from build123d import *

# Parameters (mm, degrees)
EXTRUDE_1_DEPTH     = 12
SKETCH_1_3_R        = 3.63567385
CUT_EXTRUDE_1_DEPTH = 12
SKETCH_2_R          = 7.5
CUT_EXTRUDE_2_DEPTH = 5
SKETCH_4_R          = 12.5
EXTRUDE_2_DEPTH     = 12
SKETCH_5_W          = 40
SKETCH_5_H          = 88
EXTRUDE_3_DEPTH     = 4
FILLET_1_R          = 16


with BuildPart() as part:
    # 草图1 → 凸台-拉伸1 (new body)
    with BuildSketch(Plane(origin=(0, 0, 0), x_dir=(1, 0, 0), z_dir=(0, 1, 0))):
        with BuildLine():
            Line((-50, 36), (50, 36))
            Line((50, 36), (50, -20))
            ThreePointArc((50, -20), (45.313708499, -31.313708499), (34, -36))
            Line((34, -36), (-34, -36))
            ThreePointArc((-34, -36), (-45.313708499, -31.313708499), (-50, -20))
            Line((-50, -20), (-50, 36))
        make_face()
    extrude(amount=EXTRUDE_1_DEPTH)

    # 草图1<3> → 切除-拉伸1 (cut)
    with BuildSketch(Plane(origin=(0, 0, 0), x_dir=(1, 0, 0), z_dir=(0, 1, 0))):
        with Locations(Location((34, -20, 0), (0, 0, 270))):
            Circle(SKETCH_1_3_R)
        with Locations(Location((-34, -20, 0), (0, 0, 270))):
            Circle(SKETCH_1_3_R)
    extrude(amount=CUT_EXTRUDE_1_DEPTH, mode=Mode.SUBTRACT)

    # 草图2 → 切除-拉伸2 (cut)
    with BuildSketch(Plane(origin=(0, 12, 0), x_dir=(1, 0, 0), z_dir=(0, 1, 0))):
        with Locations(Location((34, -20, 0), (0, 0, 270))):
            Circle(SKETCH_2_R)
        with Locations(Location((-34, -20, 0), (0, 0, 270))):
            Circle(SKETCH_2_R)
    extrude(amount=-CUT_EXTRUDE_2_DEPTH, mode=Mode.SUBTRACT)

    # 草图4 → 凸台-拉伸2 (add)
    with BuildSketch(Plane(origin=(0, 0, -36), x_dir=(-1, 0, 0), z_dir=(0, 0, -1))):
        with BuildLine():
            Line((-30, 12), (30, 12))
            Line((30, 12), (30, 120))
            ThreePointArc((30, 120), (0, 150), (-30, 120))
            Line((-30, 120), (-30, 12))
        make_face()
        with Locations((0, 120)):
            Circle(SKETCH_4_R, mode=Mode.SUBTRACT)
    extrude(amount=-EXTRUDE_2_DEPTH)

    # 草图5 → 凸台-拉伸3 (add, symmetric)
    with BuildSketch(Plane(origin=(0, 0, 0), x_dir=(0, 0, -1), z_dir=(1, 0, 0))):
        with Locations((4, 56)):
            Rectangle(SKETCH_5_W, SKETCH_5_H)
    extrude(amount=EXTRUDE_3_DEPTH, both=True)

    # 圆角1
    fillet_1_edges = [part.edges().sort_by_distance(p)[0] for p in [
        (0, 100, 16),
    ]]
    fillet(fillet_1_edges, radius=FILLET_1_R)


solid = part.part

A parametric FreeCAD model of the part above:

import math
import FreeCAD as App
import Part
import Sketcher


def edges_at(feature, points):
    """Names of the edges that pass closest to the given points."""
    edges = feature.Shape.Edges
    near = lambda p: min(range(len(edges)), key=lambda i: edges[i].distToShape(Part.Vertex(*p))[0])
    return sorted({f"Edge{near(p) + 1}" for p in points})


def add_polygon(sketch, points):
    """Adds a closed chain of lines whose ends are joined by coincident constraints."""
    first, n = sketch.GeometryCount, len(points)
    for a, b in zip(points, points[1:] + points[:1]):
        sketch.addGeometry(Part.LineSegment(App.Vector(*a, 0), App.Vector(*b, 0)), False)
    for i in range(n):
        sketch.addConstraint(Sketcher.Constraint("Coincident", first + i, 2, first + (i + 1) % n, 1))

doc = App.newDocument("Part")
body = doc.addObject("PartDesign::Body", "Body")

# Sketch on XZ plane
sketch1 = body.newObject("Sketcher::SketchObject", "Sketch")
sketch1.AttachmentSupport = (doc.getObject("XZ_Plane"), [""])
sketch1.MapMode = "FlatFace"
sketch1.addGeometry([
    Part.LineSegment(App.Vector(50, -36, 0), App.Vector(-50, -36, 0)),  # 0
    Part.LineSegment(App.Vector(-50, -36, 0), App.Vector(-50, 20, 0)),  # 1
    Part.ArcOfCircle(Part.Circle(App.Vector(-34, 20, 0), App.Vector(0, 0, 1), 16), math.radians(90), math.radians(180)),  # 2
    Part.LineSegment(App.Vector(-34, 36, 0), App.Vector(34, 36, 0)),  # 3
    Part.ArcOfCircle(Part.Circle(App.Vector(34, 20, 0), App.Vector(0, 0, 1), 16), math.radians(0), math.radians(90)),  # 4
    Part.LineSegment(App.Vector(50, 20, 0), App.Vector(50, -36, 0)),  # 5
], False)
sketch1.addConstraint([
    Sketcher.Constraint("Coincident", 0, 2, 1, 1),
    Sketcher.Constraint("Tangent", 1, 2, 2, 2),
    Sketcher.Constraint("Tangent", 2, 1, 3, 1),
    Sketcher.Constraint("Tangent", 3, 2, 4, 2),
    Sketcher.Constraint("Tangent", 4, 1, 5, 1),
    Sketcher.Constraint("Coincident", 5, 2, 0, 1),
    Sketcher.Constraint("Horizontal", 0),
    Sketcher.Constraint("Vertical", 1),
    Sketcher.Constraint("Horizontal", 3),
    Sketcher.Constraint("Vertical", 5),
    Sketcher.Constraint("Equal", 2, 4),
    Sketcher.Constraint("Radius", 2, 16.0),
    Sketcher.Constraint("DistanceX", 0, 2, 0, 1, 100.0),
    Sketcher.Constraint("DistanceY", 1, 1, 1, 2, 56.0),
    Sketcher.Constraint("DistanceX", 2, 3, -1, 1, 34.0),
    Sketcher.Constraint("DistanceY", -1, 1, 2, 3, 20.0),
])
pad1 = body.newObject("PartDesign::Pad", "Pad")
pad1.Profile = sketch1
pad1.Length = 12
pad1.Reversed = True

# Sketch on XZ plane
sketch2 = body.newObject("Sketcher::SketchObject", "Sketch001")
sketch2.AttachmentSupport = (doc.getObject("XZ_Plane"), [""])
sketch2.MapMode = "FlatFace"
sketch2.addGeometry([
    Part.Circle(App.Vector(34, 20, 0), App.Vector(0, 0, 1), 3.635674),
    Part.Circle(App.Vector(-34, 20, 0), App.Vector(0, 0, 1), 3.635674),
], False)
sketch2.addConstraint([
    Sketcher.Constraint("Equal", 0, 1),
    Sketcher.Constraint("Symmetric", 0, 3, 1, 3, -2),
    Sketcher.Constraint("DistanceX", -1, 1, 0, 3, 34.0),
    Sketcher.Constraint("DistanceY", -1, 1, 0, 3, 20.0),
    Sketcher.Constraint("Diameter", 0, 7.271348),
])
pocket1 = body.newObject("PartDesign::Pocket", "Pocket")
pocket1.Profile = sketch2
pocket1.Length = 12

# Sketch on XZ plane
sketch3 = body.newObject("Sketcher::SketchObject", "Sketch002")
sketch3.AttachmentSupport = (doc.getObject("XZ_Plane"), [""])
sketch3.MapMode = "FlatFace"
sketch3.AttachmentOffset = App.Placement(App.Vector(0, 0, -12), App.Rotation())
sketch3.addGeometry([
    Part.Circle(App.Vector(34, 20, 0), App.Vector(0, 0, 1), 7.5),
    Part.Circle(App.Vector(-34, 20, 0), App.Vector(0, 0, 1), 7.5),
], False)
sketch3.addConstraint([
    Sketcher.Constraint("Equal", 0, 1),
    Sketcher.Constraint("Symmetric", 0, 3, 1, 3, -2),
    Sketcher.Constraint("Diameter", 0, 15.0),
    Sketcher.Constraint("DistanceX", -1, 1, 0, 3, 34.0),
    Sketcher.Constraint("DistanceY", -1, 1, 0, 3, 20.0),
])
pocket2 = body.newObject("PartDesign::Pocket", "Pocket001")
pocket2.Profile = sketch3
pocket2.Length = 5
pocket2.Reversed = True

# Sketch on XY plane
sketch4 = body.newObject("Sketcher::SketchObject", "Sketch003")
sketch4.AttachmentSupport = (doc.getObject("XY_Plane"), [""])
sketch4.MapMode = "FlatFace"
sketch4.AttachmentOffset = App.Placement(App.Vector(0, 0, -36), App.Rotation())
sketch4.addGeometry([
    Part.LineSegment(App.Vector(30, 12, 0), App.Vector(-30, 12, 0)),  # 0
    Part.LineSegment(App.Vector(-30, 12, 0), App.Vector(-30, 120, 0)),  # 1
    Part.ArcOfCircle(Part.Circle(App.Vector(0, 120, 0), App.Vector(0, 0, 1), 30), math.radians(0), math.radians(180)),  # 2
    Part.LineSegment(App.Vector(30, 120, 0), App.Vector(30, 12, 0)),  # 3
    Part.Circle(App.Vector(0, 120, 0), App.Vector(0, 0, 1), 12.5),  # 4
], False)
sketch4.addConstraint([
    Sketcher.Constraint("Coincident", 0, 2, 1, 1),
    Sketcher.Constraint("Tangent", 1, 2, 2, 2),
    Sketcher.Constraint("Tangent", 2, 1, 3, 1),
    Sketcher.Constraint("Coincident", 3, 2, 0, 1),
    Sketcher.Constraint("Horizontal", 0),
    Sketcher.Constraint("Vertical", 1),
    Sketcher.Constraint("Vertical", 3),
    Sketcher.Constraint("Coincident", 4, 3, 2, 3),
    Sketcher.Constraint("PointOnObject", 2, 3, -2),
    Sketcher.Constraint("Diameter", 4, 25.0),
    Sketcher.Constraint("Radius", 2, 30.0),
    Sketcher.Constraint("DistanceY", 1, 1, 1, 2, 108.0),
    Sketcher.Constraint("DistanceY", -1, 1, 2, 3, 120.0),
])
pad2 = body.newObject("PartDesign::Pad", "Pad001")
pad2.Profile = sketch4
pad2.Length = 12

# Sketch on YZ plane
sketch5 = body.newObject("Sketcher::SketchObject", "Sketch004")
sketch5.AttachmentSupport = (doc.getObject("YZ_Plane"), [""])
sketch5.MapMode = "FlatFace"
add_polygon(sketch5, [(100, 16), (12, 16), (12, -24), (100, -24)])  # lines 0-3
sketch5.addConstraint([
    Sketcher.Constraint("Horizontal", 0),
    Sketcher.Constraint("Vertical", 1),
    Sketcher.Constraint("Horizontal", 2),
    Sketcher.Constraint("Vertical", 3),
    Sketcher.Constraint("DistanceX", 0, 2, 0, 1, 88.0),
    Sketcher.Constraint("DistanceY", 1, 2, 1, 1, 40.0),
    Sketcher.Constraint("DistanceX", -1, 1, 0, 2, 12.0),
    Sketcher.Constraint("DistanceY", -1, 1, 0, 2, 16.0),
])
pad3 = body.newObject("PartDesign::Pad", "Pad002")
pad3.Profile = sketch5
pad3.Length = 8
pad3.Midplane = True
doc.recompute()

fillet = body.newObject("PartDesign::Fillet", "Fillet")
fillet.Base = (pad3, edges_at(pad3, [(0, 100, 16)]))
fillet.Radius = 16

doc.recompute()
